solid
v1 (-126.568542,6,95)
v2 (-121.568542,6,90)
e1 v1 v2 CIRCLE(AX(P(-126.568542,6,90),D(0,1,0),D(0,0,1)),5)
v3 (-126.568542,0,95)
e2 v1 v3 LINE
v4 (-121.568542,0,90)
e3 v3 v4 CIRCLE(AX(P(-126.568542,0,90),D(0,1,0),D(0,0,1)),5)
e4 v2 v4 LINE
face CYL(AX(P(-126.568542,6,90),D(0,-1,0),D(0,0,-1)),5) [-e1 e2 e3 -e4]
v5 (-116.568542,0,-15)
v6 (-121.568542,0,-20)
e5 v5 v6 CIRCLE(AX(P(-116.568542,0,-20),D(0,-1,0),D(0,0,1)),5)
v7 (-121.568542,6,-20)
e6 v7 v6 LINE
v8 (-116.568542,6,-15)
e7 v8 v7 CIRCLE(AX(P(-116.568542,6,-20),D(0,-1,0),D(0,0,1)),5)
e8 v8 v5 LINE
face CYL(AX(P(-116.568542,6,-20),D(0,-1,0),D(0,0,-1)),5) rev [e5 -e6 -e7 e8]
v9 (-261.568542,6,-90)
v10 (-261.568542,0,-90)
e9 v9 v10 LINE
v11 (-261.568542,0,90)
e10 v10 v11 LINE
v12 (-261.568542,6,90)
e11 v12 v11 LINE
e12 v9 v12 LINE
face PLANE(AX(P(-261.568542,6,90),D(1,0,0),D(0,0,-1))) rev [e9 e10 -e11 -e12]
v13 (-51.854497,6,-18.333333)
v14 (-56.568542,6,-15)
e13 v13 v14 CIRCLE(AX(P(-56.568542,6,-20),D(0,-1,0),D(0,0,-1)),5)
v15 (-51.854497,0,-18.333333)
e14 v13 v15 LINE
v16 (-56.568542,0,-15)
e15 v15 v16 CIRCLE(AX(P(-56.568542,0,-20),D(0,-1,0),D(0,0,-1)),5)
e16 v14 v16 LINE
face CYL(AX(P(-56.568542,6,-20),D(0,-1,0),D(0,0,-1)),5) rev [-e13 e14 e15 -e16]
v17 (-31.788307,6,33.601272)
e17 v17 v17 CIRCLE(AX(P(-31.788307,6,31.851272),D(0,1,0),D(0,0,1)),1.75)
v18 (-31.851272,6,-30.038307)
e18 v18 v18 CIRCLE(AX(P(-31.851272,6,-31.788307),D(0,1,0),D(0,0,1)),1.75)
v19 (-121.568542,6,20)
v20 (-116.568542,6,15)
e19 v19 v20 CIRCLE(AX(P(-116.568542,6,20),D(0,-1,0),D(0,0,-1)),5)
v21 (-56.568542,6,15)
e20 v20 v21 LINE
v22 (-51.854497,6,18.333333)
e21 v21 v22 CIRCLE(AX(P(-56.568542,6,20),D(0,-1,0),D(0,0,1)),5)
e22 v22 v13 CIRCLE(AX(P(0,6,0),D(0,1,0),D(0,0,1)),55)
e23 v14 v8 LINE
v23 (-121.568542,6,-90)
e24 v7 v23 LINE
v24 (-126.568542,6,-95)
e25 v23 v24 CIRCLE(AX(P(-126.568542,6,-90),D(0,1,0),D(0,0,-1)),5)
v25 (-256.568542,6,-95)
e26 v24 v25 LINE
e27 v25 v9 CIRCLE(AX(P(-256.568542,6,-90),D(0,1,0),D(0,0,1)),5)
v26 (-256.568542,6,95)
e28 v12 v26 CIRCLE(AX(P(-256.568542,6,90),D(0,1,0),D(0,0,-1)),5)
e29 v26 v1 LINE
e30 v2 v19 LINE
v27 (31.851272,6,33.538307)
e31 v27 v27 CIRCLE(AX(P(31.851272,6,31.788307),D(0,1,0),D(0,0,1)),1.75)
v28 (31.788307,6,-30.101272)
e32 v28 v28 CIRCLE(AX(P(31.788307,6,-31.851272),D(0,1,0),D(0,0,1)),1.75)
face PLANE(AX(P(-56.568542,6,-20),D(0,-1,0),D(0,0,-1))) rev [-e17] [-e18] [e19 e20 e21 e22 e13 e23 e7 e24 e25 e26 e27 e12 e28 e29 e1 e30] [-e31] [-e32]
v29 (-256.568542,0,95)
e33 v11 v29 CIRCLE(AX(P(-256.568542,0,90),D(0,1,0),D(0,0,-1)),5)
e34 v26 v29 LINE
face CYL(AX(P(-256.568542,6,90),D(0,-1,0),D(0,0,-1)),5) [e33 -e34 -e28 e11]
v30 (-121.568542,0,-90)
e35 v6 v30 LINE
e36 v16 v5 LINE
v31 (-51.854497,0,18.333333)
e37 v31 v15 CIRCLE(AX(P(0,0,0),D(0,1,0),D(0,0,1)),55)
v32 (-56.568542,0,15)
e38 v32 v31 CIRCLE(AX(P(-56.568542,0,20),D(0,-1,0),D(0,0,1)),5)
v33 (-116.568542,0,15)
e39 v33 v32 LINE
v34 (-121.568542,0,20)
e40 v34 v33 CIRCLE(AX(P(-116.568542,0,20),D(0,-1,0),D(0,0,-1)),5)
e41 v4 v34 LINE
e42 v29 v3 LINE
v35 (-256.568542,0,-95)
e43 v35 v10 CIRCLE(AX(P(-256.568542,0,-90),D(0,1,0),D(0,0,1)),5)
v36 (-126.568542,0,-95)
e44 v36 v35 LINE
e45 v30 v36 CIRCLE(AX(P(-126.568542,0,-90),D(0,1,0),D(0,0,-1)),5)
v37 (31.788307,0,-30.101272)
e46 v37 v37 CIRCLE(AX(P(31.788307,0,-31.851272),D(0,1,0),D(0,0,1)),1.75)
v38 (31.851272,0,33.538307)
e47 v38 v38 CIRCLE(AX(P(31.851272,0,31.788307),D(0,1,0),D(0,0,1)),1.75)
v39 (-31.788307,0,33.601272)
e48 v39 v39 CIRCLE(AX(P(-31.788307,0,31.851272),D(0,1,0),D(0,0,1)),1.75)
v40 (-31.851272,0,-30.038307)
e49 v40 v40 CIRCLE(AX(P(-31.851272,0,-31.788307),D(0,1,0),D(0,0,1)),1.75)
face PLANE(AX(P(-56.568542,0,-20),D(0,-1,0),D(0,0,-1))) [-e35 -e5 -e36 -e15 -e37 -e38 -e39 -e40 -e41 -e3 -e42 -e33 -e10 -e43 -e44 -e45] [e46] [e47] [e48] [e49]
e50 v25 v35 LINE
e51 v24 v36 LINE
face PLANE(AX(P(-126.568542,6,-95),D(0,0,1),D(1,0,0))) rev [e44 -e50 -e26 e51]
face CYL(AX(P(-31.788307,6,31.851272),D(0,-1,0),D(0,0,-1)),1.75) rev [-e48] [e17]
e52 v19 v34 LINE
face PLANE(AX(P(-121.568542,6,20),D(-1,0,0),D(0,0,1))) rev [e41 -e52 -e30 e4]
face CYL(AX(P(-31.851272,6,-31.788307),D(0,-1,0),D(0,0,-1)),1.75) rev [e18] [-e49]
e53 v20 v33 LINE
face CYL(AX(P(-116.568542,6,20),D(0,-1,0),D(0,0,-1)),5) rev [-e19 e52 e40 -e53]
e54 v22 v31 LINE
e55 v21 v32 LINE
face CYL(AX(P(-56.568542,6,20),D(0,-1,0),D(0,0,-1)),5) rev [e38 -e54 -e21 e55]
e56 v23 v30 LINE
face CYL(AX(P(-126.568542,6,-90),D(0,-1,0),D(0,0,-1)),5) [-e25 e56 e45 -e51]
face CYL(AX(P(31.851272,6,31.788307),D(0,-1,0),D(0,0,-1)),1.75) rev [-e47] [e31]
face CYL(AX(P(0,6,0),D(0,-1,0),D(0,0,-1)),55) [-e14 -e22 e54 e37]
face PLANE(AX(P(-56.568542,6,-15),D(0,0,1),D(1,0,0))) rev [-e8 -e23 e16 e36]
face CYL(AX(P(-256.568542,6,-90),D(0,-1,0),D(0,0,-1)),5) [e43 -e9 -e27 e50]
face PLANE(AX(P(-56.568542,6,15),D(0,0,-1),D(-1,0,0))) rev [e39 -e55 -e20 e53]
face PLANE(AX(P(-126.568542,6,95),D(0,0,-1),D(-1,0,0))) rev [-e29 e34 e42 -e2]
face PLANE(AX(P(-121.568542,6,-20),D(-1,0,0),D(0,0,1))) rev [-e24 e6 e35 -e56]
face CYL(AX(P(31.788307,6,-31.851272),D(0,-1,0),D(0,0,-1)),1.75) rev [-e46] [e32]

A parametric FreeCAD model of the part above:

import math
import FreeCAD as App
import Part
import Sketcher

doc = App.newDocument("Part")
body = doc.addObject("PartDesign::Body", "Body")

# Sketch on XZ plane
sketch1 = body.newObject("Sketcher::SketchObject", "Sketch")
sketch1.AttachmentSupport = (doc.getObject("XZ_Plane"), [""])
sketch1.MapMode = "FlatFace"
sketch1.addGeometry([
    Part.LineSegment(App.Vector(-116.6, 15, 0), App.Vector(-56.6, 15, 0)),  # 0
    Part.ArcOfCircle(Part.Circle(App.Vector(-56.6, 20, 0), App.Vector(0, 0, 1), 5), math.radians(-90), math.radians(-19)),  # 1
    Part.ArcOfCircle(Part.Circle(App.Vector(0, 0, 0), App.Vector(0, 0, 1), 55), math.radians(-161), math.radians(161)),  # 2
    Part.ArcOfCircle(Part.Circle(App.Vector(-56.6, -20, 0), App.Vector(0, 0, 1), 5), math.radians(19), math.radians(90)),  # 3
    Part.LineSegment(App.Vector(-56.6, -15, 0), App.Vector(-116.6, -15, 0)),  # 4
    Part.ArcOfCircle(Part.Circle(App.Vector(-116.6, -20, 0), App.Vector(0, 0, 1), 5), math.radians(90), math.radians(180)),  # 5
    Part.LineSegment(App.Vector(-121.6, -20, 0), App.Vector(-121.6, -90, 0)),  # 6
    Part.ArcOfCircle(Part.Circle(App.Vector(-126.6, -90, 0), App.Vector(0, 0, 1), 5), math.radians(-90), math.radians(0)),  # 7
    Part.LineSegment(App.Vector(-126.6, -95, 0), App.Vector(-256.6, -95, 0)),  # 8
    Part.ArcOfCircle(Part.Circle(App.Vector(-256.6, -90, 0), App.Vector(0, 0, 1), 5), math.radians(180), math.radians(270)),  # 9
    Part.LineSegment(App.Vector(-261.6, -90, 0), App.Vector(-261.6, 90, 0)),  # 10
    Part.ArcOfCircle(Part.Circle(App.Vector(-256.6, 90, 0), App.Vector(0, 0, 1), 5), math.radians(90), math.radians(180)),  # 11
    Part.LineSegment(App.Vector(-256.6, 95, 0), App.Vector(-126.6, 95, 0)),  # 12
    Part.ArcOfCircle(Part.Circle(App.Vector(-126.6, 90, 0), App.Vector(0, 0, 1), 5), math.radians(0), math.radians(90)),  # 13
    Part.LineSegment(App.Vector(-121.6, 90, 0), App.Vector(-121.6, 20, 0)),  # 14
    Part.ArcOfCircle(Part.Circle(App.Vector(-116.6, 20, 0), App.Vector(0, 0, 1), 5), math.radians(180), math.radians(270)),  # 15
    Part.Circle(App.Vector(31.9, 31.8, 0), App.Vector(0, 0, 1), 1.8),  # 16
    Part.Circle(App.Vector(-31.8, 31.9, 0), App.Vector(0, 0, 1), 1.8),  # 17
    Part.Circle(App.Vector(31.8, -31.9, 0), App.Vector(0, 0, 1), 1.8),  # 18
    Part.Circle(App.Vector(-31.9, -31.8, 0), App.Vector(0, 0, 1), 1.8),  # 19
], False)
sketch1.addConstraint([
    Sketcher.Constraint("Tangent", 0, 2, 1, 1),
    Sketcher.Constraint("Tangent", 1, 2, 2, 2),
    Sketcher.Constraint("Tangent", 2, 1, 3, 1),
    Sketcher.Constraint("Tangent", 3, 2, 4, 1),
    Sketcher.Constraint("Tangent", 4, 2, 5, 1),
    Sketcher.Constraint("Tangent", 5, 2, 6, 1),
    Sketcher.Constraint("Tangent", 6, 2, 7, 2),
    Sketcher.Constraint("Tangent", 7, 1, 8, 1),
    Sketcher.Constraint("Tangent", 8, 2, 9, 2),
    Sketcher.Constraint("Tangent", 9, 1, 10, 1),
    Sketcher.Constraint("Tangent", 10, 2, 11, 2),
    Sketcher.Constraint("Tangent", 11, 1, 12, 1),
    Sketcher.Constraint("Tangent", 12, 2, 13, 2),
    Sketcher.Constraint("Tangent", 13, 1, 14, 1),
    Sketcher.Constraint("Tangent", 14, 2, 15, 1),
    Sketcher.Constraint("Tangent", 15, 2, 0, 1),
    Sketcher.Constraint("Horizontal", 0),
    Sketcher.Constraint("Horizontal", 4),
    Sketcher.Constraint("Vertical", 6),
    Sketcher.Constraint("Horizontal", 8),
    Sketcher.Constraint("Vertical", 10),
    Sketcher.Constraint("Horizontal", 12),
    Sketcher.Constraint("Vertical", 14),
    Sketcher.Constraint("Coincident", 2, 3, -1, 1),
    Sketcher.Constraint("Equal", 1, 3),
    Sketcher.Constraint("Equal", 3, 5),
    Sketcher.Constraint("Equal", 5, 7),
    Sketcher.Constraint("Equal", 7, 9),
    Sketcher.Constraint("Equal", 9, 11),
    Sketcher.Constraint("Equal", 11, 13),
    Sketcher.Constraint("Equal", 13, 15),
    Sketcher.Constraint("Equal", 16, 17),
    Sketcher.Constraint("Equal", 17, 18),
    Sketcher.Constraint("Equal", 18, 19),
    Sketcher.Constraint("Symmetric", 17, 3, 18, 3, -1, 1),
    Sketcher.Constraint("Symmetric", 16, 3, 19, 3, -1, 1),
    Sketcher.Constraint("Symmetric", 7, 3, 13, 3, -1),
    Sketcher.Constraint("Vertical", 1, 3, 3, 3),
    Sketcher.Constraint("Radius", 1, 5.0),
    Sketcher.Constraint("Radius", 2, 55.0),
    Sketcher.Constraint("Diameter", 16, 3.5),
    Sketcher.Constraint("DistanceX", 0, 1, 0, 2, 60.0),
    Sketcher.Constraint("DistanceX", 8, 2, 8, 1, 130.0),
    Sketcher.Constraint("DistanceY", 6, 2, 6, 1, 70.0),
    Sketcher.Constraint("DistanceY", 10, 1, 10, 2, 180.0),
    Sketcher.Constraint("DistanceX", 17, 3, 16, 3, 63.639579),
    Sketcher.Constraint("DistanceY", 18, 3, 16, 3, 63.639579),
    Sketcher.Constraint("DistanceX", 3, 3, 18, 3, 88.356849),
    Sketcher.Constraint("DistanceY", 1, 2, 17, 3, 13.517939),
])
pad1 = body.newObject("PartDesign::Pad", "Pad")
pad1.Profile = sketch1
pad1.Length = 6
pad1.Reversed = True

doc.recompute()
